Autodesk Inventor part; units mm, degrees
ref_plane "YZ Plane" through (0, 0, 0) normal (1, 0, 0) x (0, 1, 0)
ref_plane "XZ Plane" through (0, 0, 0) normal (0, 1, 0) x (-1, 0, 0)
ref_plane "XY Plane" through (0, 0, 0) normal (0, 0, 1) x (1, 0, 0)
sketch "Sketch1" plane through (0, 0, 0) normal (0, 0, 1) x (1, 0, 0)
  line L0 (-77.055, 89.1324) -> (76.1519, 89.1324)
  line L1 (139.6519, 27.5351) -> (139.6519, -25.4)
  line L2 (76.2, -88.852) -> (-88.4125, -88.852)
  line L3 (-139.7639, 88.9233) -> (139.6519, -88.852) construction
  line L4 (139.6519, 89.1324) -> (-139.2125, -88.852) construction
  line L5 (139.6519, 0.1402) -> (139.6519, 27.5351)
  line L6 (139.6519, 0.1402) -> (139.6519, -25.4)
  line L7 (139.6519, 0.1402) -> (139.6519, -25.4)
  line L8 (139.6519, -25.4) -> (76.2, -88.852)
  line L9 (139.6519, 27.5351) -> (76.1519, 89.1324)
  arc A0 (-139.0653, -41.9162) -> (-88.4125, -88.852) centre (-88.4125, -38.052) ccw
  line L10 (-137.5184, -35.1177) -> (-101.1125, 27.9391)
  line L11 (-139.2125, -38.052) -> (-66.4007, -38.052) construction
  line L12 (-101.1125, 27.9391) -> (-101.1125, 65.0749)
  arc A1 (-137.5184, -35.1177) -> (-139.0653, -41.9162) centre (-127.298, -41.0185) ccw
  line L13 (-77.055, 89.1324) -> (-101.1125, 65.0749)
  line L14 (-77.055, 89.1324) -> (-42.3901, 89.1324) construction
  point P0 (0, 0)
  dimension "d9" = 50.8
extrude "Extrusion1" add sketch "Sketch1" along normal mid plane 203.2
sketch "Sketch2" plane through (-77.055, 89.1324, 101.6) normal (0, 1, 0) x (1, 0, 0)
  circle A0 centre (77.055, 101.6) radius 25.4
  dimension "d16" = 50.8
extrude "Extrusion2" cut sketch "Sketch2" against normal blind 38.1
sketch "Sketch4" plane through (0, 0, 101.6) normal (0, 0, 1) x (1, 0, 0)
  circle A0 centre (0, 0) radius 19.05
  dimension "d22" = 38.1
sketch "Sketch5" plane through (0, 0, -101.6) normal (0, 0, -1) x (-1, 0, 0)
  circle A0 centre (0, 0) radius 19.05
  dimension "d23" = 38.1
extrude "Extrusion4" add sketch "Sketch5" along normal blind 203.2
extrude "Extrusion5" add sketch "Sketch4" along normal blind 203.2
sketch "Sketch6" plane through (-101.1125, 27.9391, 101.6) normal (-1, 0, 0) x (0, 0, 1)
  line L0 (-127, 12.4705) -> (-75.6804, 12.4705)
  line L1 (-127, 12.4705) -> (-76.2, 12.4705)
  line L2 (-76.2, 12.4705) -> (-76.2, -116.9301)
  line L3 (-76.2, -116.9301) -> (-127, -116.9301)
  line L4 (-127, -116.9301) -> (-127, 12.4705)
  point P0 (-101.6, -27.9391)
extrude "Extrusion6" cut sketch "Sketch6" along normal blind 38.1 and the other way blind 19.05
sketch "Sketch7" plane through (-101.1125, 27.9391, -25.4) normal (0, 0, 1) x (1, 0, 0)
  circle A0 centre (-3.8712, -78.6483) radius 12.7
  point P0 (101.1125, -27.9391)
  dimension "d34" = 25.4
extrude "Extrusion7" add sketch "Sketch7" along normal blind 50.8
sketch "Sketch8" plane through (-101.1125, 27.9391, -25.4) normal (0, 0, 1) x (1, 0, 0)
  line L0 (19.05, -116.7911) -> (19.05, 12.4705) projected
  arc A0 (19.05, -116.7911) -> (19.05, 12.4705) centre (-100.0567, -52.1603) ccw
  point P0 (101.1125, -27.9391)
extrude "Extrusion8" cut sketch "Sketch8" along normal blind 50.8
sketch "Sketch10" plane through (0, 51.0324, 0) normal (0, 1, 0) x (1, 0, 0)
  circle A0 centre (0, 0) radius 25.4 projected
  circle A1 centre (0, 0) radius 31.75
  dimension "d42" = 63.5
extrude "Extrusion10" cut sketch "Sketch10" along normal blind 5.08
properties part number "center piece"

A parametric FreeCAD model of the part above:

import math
import FreeCAD as App
import Part
import Sketcher

V = App.Vector
Q = App.Units.Quantity

doc = App.newDocument("Part")
body = doc.addObject("PartDesign::Body", "Body")

# Sketch on XY plane
sketch1 = doc.addObject("Sketcher::SketchObject", "Sketch")
body.addObject(sketch1)
sketch1.AttachmentSupport = (doc.XY_Plane, [""])
sketch1.MapMode = "FlatFace"
sketch1.addGeometry([
    Part.LineSegment(V(76.1519, 89.1324, 0), V(-77.055, 89.1324, 0)),  # 0
    Part.LineSegment(V(-77.055, 89.1324, 0), V(-101.1125, 65.0749, 0)),  # 1
    Part.LineSegment(V(-101.1125, 65.0749, 0), V(-101.1125, 27.9391, 0)),  # 2
    Part.LineSegment(V(-101.1125, 27.9391, 0), V(-137.5184, -35.1177, 0)),  # 3
    Part.ArcOfCircle(Part.Circle(V(-127.298, -41.0185, 0), V(0, 0, 1), 11.801526), math.radians(149.999793), math.radians(184.362512)),  # 4
    Part.ArcOfCircle(Part.Circle(V(-88.4125, -38.052, 0), V(0, 0, 1), 50.799982), math.radians(-175.63747), math.radians(-90)),  # 5
    Part.LineSegment(V(-88.4125, -88.852, 0), V(76.2, -88.852, 0)),  # 6
    Part.LineSegment(V(76.2, -88.852, 0), V(139.6519, -25.4, 0)),  # 7
    Part.LineSegment(V(139.6519, -25.4, 0), V(139.6519, 27.5351, 0)),  # 8
    Part.LineSegment(V(139.6519, 27.5351, 0), V(76.1519, 89.1324, 0)),  # 9
], False)
sketch1.addConstraint([
    Sketcher.Constraint("Coincident", 0, 2, 1, 1),
    Sketcher.Constraint("Coincident", 1, 2, 2, 1),
    Sketcher.Constraint("Coincident", 2, 2, 3, 1),
    Sketcher.Constraint("Tangent", 3, 2, 4, 1),
    Sketcher.Constraint("Tangent", 4, 2, 5, 1),
    Sketcher.Constraint("Tangent", 5, 2, 6, 1),
    Sketcher.Constraint("Coincident", 6, 2, 7, 1),
    Sketcher.Constraint("Coincident", 7, 2, 8, 1),
    Sketcher.Constraint("Coincident", 8, 2, 9, 1),
    Sketcher.Constraint("Coincident", 9, 2, 0, 1),
    Sketcher.Constraint("Horizontal", 0),
    Sketcher.Constraint("Vertical", 2),
    Sketcher.Constraint("Horizontal", 6),
    Sketcher.Constraint("Vertical", 8),
    Sketcher.Constraint("Parallel", 1, 7),
    Sketcher.Constraint("Radius", 5, Q("2 in")),
    Sketcher.Constraint("DistanceX", -1, 1, 6, 2, Q("3 in")),
    Sketcher.Constraint("DistanceY", 7, 2, -1, 1, Q("1 in")),
    Sketcher.Constraint("Angle", 1, Q("-135 deg")),
    Sketcher.Constraint("Angle", 3, Q("-120 deg")),
    Sketcher.Constraint("DistanceX", 1, 2, 5, 3, Q("0.5 in")),
    Sketcher.Constraint("DistanceX", 9, 2, 8, 2, Q("2.5 in")),
    Sketcher.Constraint("Radius", 4, 11.8015),
    Sketcher.Constraint("DistanceX", 6, 1, 6, 2, Q("6.4808 in")),
    Sketcher.Constraint("DistanceY", -1, 1, 1, 2, Q("2.562 in")),
    Sketcher.Constraint("Distance", 3, Q("2.8666 in")),
    Sketcher.Constraint("DistanceX", 0, 2, 0, 1, 153.207),
    Sketcher.Constraint("DistanceY", 2, 2, 2, 1, 37.1358),
    Sketcher.Constraint("DistanceY", 8, 1, 8, 2, 52.935),
])
pad1 = doc.addObject("PartDesign::Pad", "Pad")
body.addObject(pad1)
pad1.Profile = sketch1
pad1.Length = Q("8 in")
pad1.Midplane = True

# Sketch on XZ plane
sketch2 = doc.addObject("Sketcher::SketchObject", "Sketch001")
body.addObject(sketch2)
sketch2.AttachmentSupport = (doc.XZ_Plane, [""])
sketch2.MapMode = "FlatFace"
sketch2.AttachmentOffset = App.Placement(V(0, 0, -89.1324), App.Rotation())
sketch2.addGeometry(Part.Circle(V(0, 0, 0), V(0, 0, 1), 25.4), False)
sketch2.addConstraint([
    Sketcher.Constraint("Coincident", 0, 3, -1, 1),
    Sketcher.Constraint("Diameter", 0, Q("2 in")),
])
pocket1 = doc.addObject("PartDesign::Pocket", "Pocket")
body.addObject(pocket1)
pocket1.Profile = sketch2
pocket1.Length = Q("1.5 in")
pocket1.Reversed = True

# Sketch on XY plane
sketch3 = doc.addObject("Sketcher::SketchObject", "Sketch002")
body.addObject(sketch3)
sketch3.AttachmentSupport = (doc.XY_Plane, [""])
sketch3.MapMode = "FlatFace"
sketch3.AttachmentOffset = App.Placement(V(0, 0, -4 * 25.4), App.Rotation())
sketch3.addGeometry(Part.Circle(V(0, 0, 0), V(0, 0, 1), 19.05), False)
sketch3.addConstraint([
    Sketcher.Constraint("Coincident", 0, 3, -1, 1),
    Sketcher.Constraint("Diameter", 0, Q("1.5 in")),
])
pad2 = doc.addObject("PartDesign::Pad", "Pad001")
body.addObject(pad2)
pad2.Profile = sketch3
pad2.Length = Q("8 in")
pad2.Reversed = True

# Sketch on XY plane
sketch4 = doc.addObject("Sketcher::SketchObject", "Sketch003")
body.addObject(sketch4)
sketch4.AttachmentSupport = (doc.XY_Plane, [""])
sketch4.MapMode = "FlatFace"
sketch4.AttachmentOffset = App.Placement(V(0, 0, 4 * 25.4), App.Rotation())
sketch4.addGeometry(Part.Circle(V(0, 0, 0), V(0, 0, 1), 19.05), False)
sketch4.addConstraint([
    Sketcher.Constraint("Coincident", 0, 3, -1, 1),
    Sketcher.Constraint("Diameter", 0, Q("1.5 in")),
])
pad3 = doc.addObject("PartDesign::Pad", "Pad002")
body.addObject(pad3)
pad3.Profile = sketch4
pad3.Length = Q("8 in")

# Sketch on YZ plane
sketch5 = doc.addObject("Sketcher::SketchObject", "Sketch004")
body.addObject(sketch5)
sketch5.AttachmentSupport = (doc.YZ_Plane, [""])
sketch5.MapMode = "FlatFace"
sketch5.AttachmentOffset = App.Placement(V(0, 0, -3.9808071 * 25.4), App.Rotation())
sketch5.addGeometry([
    Part.LineSegment(V(40.4096, 25.4, 0), V(40.4096, -25.4, 0)),
    Part.LineSegment(V(40.4096, -25.4, 0), V(-88.991, -25.4, 0)),
    Part.LineSegment(V(-88.991, -25.4, 0), V(-88.991, 25.4, 0)),
    Part.LineSegment(V(-88.991, 25.4, 0), V(40.4096, 25.4, 0)),
], False)
sketch5.addConstraint([
    Sketcher.Constraint("Coincident", 0, 2, 1, 1),
    Sketcher.Constraint("Coincident", 1, 2, 2, 1),
    Sketcher.Constraint("Coincident", 2, 2, 3, 1),
    Sketcher.Constraint("Coincident", 3, 2, 0, 1),
    Sketcher.Constraint("Vertical", 0),
    Sketcher.Constraint("Horizontal", 1),
    Sketcher.Constraint("Vertical", 2),
    Sketcher.Constraint("Horizontal", 3),
    Sketcher.Constraint("DistanceY", 0, 2, 0, 1, Q("2 in")),
    Sketcher.Constraint("DistanceY", 0, 2, -1, 1, Q("1 in")),
    Sketcher.Constraint("DistanceX", 1, 2, 1, 1, Q("5.0945 in")),
    Sketcher.Constraint("DistanceX", -1, 1, 0, 2, 40.4096),
])
pocket2 = doc.addObject("PartDesign::Pocket", "Pocket001")
body.addObject(pocket2)
pocket2.Profile = sketch5
pocket2.Type = "TwoLengths"
pocket2.Length = Q("1.5 in")
pocket2.Length2 = Q("0.75 in")

# Sketch on XY plane
sketch6 = doc.addObject("Sketcher::SketchObject", "Sketch005")
body.addObject(sketch6)
sketch6.AttachmentSupport = (doc.XY_Plane, [""])
sketch6.MapMode = "FlatFace"
sketch6.AttachmentOffset = App.Placement(V(0, 0, -1 * 25.4), App.Rotation())
sketch6.addGeometry(Part.Circle(V(-104.9837, -50.7092, 0), V(0, 0, 1), 12.7), False)
sketch6.addConstraint([
    Sketcher.Constraint("Diameter", 0, Q("1 in")),
    Sketcher.Constraint("DistanceX", 0, 3, -1, 1, 104.9837),
    Sketcher.Constraint("DistanceY", 0, 3, -1, 1, 50.7092),
])
pad4 = doc.addObject("PartDesign::Pad", "Pad003")
body.addObject(pad4)
pad4.Profile = sketch6
pad4.Length = Q("2 in")

# Sketch on XY plane
sketch7 = doc.addObject("Sketcher::SketchObject", "Sketch006")
body.addObject(sketch7)
sketch7.AttachmentSupport = (doc.XY_Plane, [""])
sketch7.MapMode = "FlatFace"
sketch7.AttachmentOffset = App.Placement(V(0, 0, -1 * 25.4), App.Rotation())
sketch7.addGeometry([
    Part.LineSegment(V(-82.0625, 40.4096, 0), V(-82.0625, -88.852, 0)),
    Part.ArcOfCircle(Part.Circle(V(-201.1692, -24.2212, 0), V(0, 0, 1), 135.512163), math.radians(-28.48556), math.radians(28.48556)),
], False)
sketch7.addConstraint([
    Sketcher.Constraint("Coincident", 0, 1, 1, 2),
    Sketcher.Constraint("Coincident", 1, 1, 0, 2),
    Sketcher.Constraint("Vertical", 0),
    Sketcher.Constraint("Radius", 1, 135.5122),
    Sketcher.Constraint("DistanceY", 0, 2, 0, 1, 129.2616),
    Sketcher.Constraint("DistanceY", 1, 3, -1, 1, Q("0.9536 in")),
    Sketcher.Constraint("DistanceX", 0, 1, -1, 1, Q("3.2308 in")),
])
pocket3 = doc.addObject("PartDesign::Pocket", "Pocket002")
body.addObject(pocket3)
pocket3.Profile = sketch7
pocket3.Length = Q("2 in")
pocket3.Reversed = True

# Sketch on XZ plane
sketch8 = doc.addObject("Sketcher::SketchObject", "Sketch007")
body.addObject(sketch8)
sketch8.AttachmentSupport = (doc.XZ_Plane, [""])
sketch8.MapMode = "FlatFace"
sketch8.AttachmentOffset = App.Placement(V(0, 0, -51.0324), App.Rotation())
sketch8.addGeometry([
    Part.Circle(V(0, 0, 0), V(0, 0, 1), 31.75),
    Part.Circle(V(0, 0, 0), V(0, 0, 1), 25.4),
], False)
sketch8.addConstraint([
    Sketcher.Constraint("Coincident", 0, 3, -1, 1),
    Sketcher.Constraint("Coincident", 1, 3, -1, 1),
    Sketcher.Constraint("Diameter", 0, Q("2.5 in")),
    Sketcher.Constraint("Diameter", 1, Q("2 in")),
])
pocket4 = doc.addObject("PartDesign::Pocket", "Pocket003")
body.addObject(pocket4)
pocket4.Profile = sketch8
pocket4.Length = Q("0.2 in")

doc.recompute()
